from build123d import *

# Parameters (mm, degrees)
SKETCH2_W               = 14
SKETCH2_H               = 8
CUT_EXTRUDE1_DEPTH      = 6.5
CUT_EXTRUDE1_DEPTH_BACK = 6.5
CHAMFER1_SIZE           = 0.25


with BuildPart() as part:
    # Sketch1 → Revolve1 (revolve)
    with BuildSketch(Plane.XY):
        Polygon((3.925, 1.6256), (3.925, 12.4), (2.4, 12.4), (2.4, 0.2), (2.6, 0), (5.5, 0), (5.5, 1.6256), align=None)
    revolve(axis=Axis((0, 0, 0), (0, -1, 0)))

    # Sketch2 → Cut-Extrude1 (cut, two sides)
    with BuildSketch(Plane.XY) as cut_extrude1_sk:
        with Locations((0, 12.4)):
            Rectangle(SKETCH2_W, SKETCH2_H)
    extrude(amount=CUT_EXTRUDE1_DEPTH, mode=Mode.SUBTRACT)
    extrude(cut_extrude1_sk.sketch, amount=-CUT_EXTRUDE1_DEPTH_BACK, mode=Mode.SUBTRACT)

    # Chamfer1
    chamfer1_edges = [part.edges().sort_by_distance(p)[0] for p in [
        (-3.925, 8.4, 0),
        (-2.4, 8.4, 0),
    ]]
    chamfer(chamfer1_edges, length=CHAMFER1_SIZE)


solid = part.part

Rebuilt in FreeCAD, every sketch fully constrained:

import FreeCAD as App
import Part
import Sketcher

V = App.Vector
Q = App.Units.Quantity


def edges_at(feature, points):
    """Names of the edges that pass closest to the given points."""
    edges = feature.Shape.Edges
    near = lambda p: min(range(len(edges)), key=lambda i: edges[i].distToShape(Part.Vertex(*p))[0])
    return sorted({f"Edge{near(p) + 1}" for p in points})


def add_polygon(sketch, points):
    """Adds a closed chain of lines whose ends are joined by coincident constraints."""
    first, n = sketch.GeometryCount, len(points)
    for a, b in zip(points, points[1:] + points[:1]):
        sketch.addGeometry(Part.LineSegment(App.Vector(*a, 0), App.Vector(*b, 0)), False)
    for i in range(n):
        sketch.addConstraint(Sketcher.Constraint("Coincident", first + i, 2, first + (i + 1) % n, 1))

doc = App.newDocument("Part")
params = doc.addObject("Spreadsheet::Sheet", "Params")
for row, (alias, value) in enumerate([
    ("sketch1_width", "2.9 mm"),
    ("sketch1_height", "12.2 mm"),
    ("revolution_angle", "360 deg"),
    ("sketch2_width", "14 mm"),
    ("sketch2_height", "8 mm"),
    ("chamfer_size", "0.25 mm"),
], start=1):
    params.set(f"A{row}", alias)
    params.set(f"B{row}", "=" + value)
    params.setAlias(f"B{row}", alias)

body = doc.addObject("PartDesign::Body", "Body")

# Sketch on XY plane
sketch1 = body.newObject("Sketcher::SketchObject", "Sketch")
sketch1.AttachmentSupport = (doc.getObject("XY_Plane"), [""])
sketch1.MapMode = "FlatFace"
add_polygon(sketch1, [(3.92, 1.63), (3.92, 12.4), (2.4, 12.4), (2.4, 0.2), (2.6, 0), (5.5, 0), (5.5, 1.63)])  # lines 0-6
sketch1.addConstraint([
    Sketcher.Constraint("Vertical", 0),
    Sketcher.Constraint("Horizontal", 1),
    Sketcher.Constraint("Vertical", 2),
    Sketcher.Constraint("Horizontal", 4),
    Sketcher.Constraint("Vertical", 5),
    Sketcher.Constraint("Horizontal", 6),
    Sketcher.Constraint("PointOnObject", 3, 2, -1),
    Sketcher.Constraint("Angle", 3, Q("-45 deg")),
    Sketcher.Constraint("DistanceX", 4, 1, 4, 2, Q("2.9 mm")),
    Sketcher.Constraint("DistanceY", 2, 2, 2, 1, Q("12.2 mm")),
    Sketcher.Constraint("DistanceY", -1, 1, 0, 2, Q("12.4 mm")),
    Sketcher.Constraint("DistanceX", -1, 1, 1, 2, Q("2.4 mm")),
    Sketcher.Constraint("DistanceX", 1, 2, 1, 1, Q("1.525 mm")),
    Sketcher.Constraint("DistanceY", 0, 1, 0, 2, Q("10.7744 mm")),
])
sketch1.setExpression("Constraints[15]", "Params.sketch1_width")
sketch1.setExpression("Constraints[16]", "Params.sketch1_height")
revolution = body.newObject("PartDesign::Revolution", "Revolution")
revolution.Profile = sketch1
revolution.ReferenceAxis = (sketch1, ["V_Axis"])
revolution.setExpression("Angle", "Params.revolution_angle")

# Sketch on XY plane
sketch2 = body.newObject("Sketcher::SketchObject", "Sketch001")
sketch2.AttachmentSupport = (doc.getObject("XY_Plane"), [""])
sketch2.MapMode = "FlatFace"
add_polygon(sketch2, [(-7, 16), (-7, 8), (7, 8), (7, 16)])  # lines 0-3
sketch2.addConstraint([
    Sketcher.Constraint("Vertical", 0),
    Sketcher.Constraint("Horizontal", 1),
    Sketcher.Constraint("Vertical", 2),
    Sketcher.Constraint("Horizontal", 3),
    Sketcher.Constraint("DistanceX", 1, 1, 1, 2, Q("14 mm")),
    Sketcher.Constraint("DistanceY", 0, 2, 0, 1, Q("8 mm")),
    Sketcher.Constraint("DistanceX", 0, 2, -1, 1, Q("7 mm")),
    Sketcher.Constraint("DistanceY", -1, 1, 0, 2, Q("8.4 mm")),
])
sketch2.setExpression("Constraints[8]", "Params.sketch2_width")
sketch2.setExpression("Constraints[9]", "Params.sketch2_height")
pocket1 = body.newObject("PartDesign::Pocket", "Pocket")
pocket1.Profile = sketch2
pocket1.Type = "ThroughAll"
pocket1.Midplane = True
doc.recompute()

chamfer = body.newObject("PartDesign::Chamfer", "Chamfer")
chamfer.Base = (pocket1, edges_at(pocket1, [(-3.925, 8.4, 0), (-2.4, 8.4, 0)]))
chamfer.setExpression("Size", "Params.chamfer_size")

doc.recompute()
